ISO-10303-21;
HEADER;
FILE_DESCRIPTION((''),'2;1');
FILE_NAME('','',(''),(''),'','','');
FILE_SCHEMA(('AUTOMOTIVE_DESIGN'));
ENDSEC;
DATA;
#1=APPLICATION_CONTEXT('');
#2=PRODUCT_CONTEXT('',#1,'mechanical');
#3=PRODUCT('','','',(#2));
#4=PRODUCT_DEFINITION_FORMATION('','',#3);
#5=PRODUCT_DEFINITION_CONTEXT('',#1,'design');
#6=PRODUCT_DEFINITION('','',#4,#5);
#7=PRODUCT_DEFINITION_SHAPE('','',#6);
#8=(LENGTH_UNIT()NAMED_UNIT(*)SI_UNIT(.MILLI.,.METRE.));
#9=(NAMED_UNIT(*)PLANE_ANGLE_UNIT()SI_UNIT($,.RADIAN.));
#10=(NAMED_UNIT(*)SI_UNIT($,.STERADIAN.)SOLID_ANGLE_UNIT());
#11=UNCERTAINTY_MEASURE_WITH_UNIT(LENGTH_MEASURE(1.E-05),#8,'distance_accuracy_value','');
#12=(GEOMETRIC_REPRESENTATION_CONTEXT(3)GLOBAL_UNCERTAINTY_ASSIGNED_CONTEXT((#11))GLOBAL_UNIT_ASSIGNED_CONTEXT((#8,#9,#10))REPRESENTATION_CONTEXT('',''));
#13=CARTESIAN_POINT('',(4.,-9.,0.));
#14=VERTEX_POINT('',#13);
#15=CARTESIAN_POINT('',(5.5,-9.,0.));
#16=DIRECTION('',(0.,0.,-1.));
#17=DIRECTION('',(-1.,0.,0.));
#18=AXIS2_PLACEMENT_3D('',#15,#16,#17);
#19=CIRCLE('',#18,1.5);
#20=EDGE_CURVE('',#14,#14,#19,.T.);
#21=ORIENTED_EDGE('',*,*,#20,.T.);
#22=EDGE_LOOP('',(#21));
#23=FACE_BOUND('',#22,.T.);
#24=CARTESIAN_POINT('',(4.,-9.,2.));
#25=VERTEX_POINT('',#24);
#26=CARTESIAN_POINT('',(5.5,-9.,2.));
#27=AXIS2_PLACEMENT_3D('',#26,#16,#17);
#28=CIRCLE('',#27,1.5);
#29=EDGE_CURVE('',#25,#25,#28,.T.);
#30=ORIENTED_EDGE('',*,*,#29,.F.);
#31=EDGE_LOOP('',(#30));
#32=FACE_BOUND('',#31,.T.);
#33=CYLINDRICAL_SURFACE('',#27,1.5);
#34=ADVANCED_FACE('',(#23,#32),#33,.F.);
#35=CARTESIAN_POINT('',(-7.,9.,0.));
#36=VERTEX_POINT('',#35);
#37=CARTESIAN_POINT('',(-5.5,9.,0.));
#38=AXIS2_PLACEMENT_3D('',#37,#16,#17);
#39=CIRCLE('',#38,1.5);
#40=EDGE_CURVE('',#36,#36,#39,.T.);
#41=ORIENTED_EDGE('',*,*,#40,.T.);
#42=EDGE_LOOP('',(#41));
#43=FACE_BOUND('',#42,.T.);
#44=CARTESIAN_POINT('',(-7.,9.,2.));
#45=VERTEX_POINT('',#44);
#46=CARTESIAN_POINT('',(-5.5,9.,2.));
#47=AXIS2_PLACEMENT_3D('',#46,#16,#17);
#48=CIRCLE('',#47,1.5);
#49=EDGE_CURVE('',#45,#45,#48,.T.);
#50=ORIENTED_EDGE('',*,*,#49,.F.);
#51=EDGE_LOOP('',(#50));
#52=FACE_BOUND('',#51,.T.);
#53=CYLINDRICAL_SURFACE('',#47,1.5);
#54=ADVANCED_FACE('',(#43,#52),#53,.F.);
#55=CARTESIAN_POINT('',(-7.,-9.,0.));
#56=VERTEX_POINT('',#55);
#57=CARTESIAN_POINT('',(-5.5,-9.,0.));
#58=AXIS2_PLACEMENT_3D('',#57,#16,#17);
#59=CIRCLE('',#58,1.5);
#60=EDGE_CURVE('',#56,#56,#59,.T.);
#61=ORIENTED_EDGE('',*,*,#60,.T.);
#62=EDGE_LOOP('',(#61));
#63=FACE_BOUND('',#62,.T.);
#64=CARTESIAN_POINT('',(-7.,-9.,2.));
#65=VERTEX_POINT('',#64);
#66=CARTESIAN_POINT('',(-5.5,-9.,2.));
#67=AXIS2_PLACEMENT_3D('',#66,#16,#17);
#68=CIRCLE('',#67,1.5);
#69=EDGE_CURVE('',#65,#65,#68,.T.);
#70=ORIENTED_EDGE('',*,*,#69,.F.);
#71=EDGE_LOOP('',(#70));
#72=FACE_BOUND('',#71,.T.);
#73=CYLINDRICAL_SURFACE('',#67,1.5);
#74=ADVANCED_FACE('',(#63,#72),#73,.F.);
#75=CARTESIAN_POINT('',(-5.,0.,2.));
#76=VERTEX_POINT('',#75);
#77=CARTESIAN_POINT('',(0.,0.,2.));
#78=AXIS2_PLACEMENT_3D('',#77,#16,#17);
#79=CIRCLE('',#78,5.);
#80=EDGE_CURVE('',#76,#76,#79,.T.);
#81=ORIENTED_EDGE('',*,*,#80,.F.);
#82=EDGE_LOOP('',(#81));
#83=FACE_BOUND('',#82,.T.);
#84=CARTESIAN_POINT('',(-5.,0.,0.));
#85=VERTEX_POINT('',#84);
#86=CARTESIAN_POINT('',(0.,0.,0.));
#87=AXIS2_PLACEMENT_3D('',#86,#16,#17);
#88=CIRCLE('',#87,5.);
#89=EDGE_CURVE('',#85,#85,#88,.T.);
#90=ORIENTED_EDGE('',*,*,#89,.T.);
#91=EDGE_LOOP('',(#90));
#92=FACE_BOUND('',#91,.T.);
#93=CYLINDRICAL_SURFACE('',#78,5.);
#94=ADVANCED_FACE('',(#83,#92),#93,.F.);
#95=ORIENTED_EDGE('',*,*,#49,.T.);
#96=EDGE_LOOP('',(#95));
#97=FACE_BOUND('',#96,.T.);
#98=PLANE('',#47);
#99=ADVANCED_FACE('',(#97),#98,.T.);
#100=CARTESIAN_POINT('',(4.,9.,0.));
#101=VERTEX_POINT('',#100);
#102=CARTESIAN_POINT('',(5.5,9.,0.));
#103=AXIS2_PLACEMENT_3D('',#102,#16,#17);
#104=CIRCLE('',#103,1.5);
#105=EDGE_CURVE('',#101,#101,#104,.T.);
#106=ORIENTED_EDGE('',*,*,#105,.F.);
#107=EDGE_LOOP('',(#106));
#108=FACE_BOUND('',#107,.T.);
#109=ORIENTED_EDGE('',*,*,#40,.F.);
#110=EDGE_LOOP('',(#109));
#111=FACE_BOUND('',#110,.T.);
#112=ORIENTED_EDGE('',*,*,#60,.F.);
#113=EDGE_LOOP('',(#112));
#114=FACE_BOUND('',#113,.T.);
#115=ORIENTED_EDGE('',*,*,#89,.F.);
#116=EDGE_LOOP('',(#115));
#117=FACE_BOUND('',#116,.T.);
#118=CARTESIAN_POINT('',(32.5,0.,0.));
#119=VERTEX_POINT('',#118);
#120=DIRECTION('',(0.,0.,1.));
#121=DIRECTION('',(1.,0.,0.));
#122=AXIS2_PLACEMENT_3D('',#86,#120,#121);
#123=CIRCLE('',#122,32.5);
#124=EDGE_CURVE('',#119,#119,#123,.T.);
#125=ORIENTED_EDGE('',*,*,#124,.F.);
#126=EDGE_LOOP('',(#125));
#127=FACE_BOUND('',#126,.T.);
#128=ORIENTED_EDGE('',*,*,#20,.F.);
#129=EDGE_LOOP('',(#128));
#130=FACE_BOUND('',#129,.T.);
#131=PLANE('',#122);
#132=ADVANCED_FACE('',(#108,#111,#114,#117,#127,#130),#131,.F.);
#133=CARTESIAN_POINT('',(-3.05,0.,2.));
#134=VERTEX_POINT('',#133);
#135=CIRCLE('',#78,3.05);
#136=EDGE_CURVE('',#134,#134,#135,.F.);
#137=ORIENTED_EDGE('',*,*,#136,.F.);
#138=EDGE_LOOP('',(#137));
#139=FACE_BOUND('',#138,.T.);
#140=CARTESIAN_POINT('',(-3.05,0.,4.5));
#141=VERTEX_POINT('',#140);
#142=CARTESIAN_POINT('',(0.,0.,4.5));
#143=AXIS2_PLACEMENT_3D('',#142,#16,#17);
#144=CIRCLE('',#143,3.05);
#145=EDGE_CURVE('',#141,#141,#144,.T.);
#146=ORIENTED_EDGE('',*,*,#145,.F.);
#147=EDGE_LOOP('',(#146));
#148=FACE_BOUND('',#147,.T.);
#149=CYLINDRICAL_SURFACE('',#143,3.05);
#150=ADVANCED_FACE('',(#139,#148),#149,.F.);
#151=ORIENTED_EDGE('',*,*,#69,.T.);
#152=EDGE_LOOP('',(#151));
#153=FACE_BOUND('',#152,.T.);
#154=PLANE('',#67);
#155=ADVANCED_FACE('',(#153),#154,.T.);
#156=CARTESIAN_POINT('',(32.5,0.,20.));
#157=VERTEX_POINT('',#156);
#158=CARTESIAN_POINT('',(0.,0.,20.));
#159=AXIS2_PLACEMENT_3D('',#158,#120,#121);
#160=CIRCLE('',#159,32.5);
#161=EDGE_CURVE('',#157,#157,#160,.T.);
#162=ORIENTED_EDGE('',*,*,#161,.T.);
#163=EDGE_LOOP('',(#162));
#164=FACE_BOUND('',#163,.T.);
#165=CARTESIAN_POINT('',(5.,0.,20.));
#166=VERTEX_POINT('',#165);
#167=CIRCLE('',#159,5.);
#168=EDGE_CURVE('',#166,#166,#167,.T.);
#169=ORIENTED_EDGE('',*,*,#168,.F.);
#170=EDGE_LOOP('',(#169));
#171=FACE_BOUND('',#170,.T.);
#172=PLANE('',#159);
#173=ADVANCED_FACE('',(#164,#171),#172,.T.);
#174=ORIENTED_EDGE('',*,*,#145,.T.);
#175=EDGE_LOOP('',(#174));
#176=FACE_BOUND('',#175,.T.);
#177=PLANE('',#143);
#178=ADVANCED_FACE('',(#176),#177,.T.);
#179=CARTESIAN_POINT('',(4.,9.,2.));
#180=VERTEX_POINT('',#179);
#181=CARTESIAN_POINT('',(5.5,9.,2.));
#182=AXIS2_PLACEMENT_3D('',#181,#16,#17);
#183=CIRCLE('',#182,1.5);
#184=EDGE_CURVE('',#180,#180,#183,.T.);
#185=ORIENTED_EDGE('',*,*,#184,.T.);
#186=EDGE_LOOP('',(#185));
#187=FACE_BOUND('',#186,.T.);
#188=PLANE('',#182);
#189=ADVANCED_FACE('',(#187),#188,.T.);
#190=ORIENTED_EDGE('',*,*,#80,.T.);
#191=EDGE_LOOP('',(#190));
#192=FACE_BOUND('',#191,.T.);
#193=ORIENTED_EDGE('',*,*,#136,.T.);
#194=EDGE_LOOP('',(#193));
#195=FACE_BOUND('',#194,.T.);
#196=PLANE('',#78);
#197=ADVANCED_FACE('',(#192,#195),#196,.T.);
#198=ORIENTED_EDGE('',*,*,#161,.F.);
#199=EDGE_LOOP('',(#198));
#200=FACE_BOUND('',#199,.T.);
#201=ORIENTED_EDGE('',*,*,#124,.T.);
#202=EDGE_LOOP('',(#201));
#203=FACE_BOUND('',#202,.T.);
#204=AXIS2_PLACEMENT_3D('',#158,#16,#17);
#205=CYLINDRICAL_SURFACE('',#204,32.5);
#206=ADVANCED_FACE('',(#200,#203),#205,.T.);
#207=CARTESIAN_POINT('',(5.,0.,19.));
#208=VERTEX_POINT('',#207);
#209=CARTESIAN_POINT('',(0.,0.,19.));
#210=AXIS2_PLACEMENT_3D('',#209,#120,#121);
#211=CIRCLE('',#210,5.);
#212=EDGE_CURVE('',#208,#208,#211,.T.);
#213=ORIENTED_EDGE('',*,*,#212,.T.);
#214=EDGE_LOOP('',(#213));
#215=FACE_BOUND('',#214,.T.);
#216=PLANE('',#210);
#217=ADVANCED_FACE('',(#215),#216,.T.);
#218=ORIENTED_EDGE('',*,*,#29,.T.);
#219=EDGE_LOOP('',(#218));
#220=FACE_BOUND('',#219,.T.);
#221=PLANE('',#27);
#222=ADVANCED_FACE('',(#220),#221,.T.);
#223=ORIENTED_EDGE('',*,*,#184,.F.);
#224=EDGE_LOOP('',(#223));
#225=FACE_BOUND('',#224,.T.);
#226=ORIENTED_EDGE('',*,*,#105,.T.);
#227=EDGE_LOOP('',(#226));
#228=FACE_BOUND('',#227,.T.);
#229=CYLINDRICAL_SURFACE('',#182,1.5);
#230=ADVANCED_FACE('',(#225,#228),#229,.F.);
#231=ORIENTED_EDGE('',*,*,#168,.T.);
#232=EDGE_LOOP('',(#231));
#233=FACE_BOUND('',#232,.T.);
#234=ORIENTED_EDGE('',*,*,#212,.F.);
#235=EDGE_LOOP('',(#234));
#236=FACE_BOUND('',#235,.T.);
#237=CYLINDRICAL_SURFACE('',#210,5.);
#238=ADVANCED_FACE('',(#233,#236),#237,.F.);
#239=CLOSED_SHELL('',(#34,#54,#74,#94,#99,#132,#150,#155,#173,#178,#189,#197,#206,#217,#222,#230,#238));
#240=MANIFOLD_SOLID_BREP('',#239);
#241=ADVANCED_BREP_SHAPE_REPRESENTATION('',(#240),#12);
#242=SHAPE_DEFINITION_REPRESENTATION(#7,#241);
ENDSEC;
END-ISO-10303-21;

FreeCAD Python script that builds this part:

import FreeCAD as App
import Part
import Sketcher

doc = App.newDocument("Part")
params = doc.addObject("Spreadsheet::Sheet", "Params")
for row, (alias, value) in enumerate([
    ("sketch1_diameter", "65 mm"),
    ("pad1_length", "20 mm"),
    ("sketch2_diameter", "10 mm"),
    ("pocket1_length", "1 mm"),
    ("sketch3_diameter", "6.1 mm"),
    ("pocket2_length", "4.5 mm"),
    ("sketch4_diameter", "3 mm"),
    ("pocket3_length", "2 mm"),
    ("sketch5_diameter", "10 mm"),
    ("pocket4_length", "2 mm"),
], start=1):
    params.set(f"A{row}", alias)
    params.set(f"B{row}", "=" + value)
    params.setAlias(f"B{row}", alias)

body = doc.addObject("PartDesign::Body", "Body")

sketch1 = body.newObject("Sketcher::SketchObject", "Sketch")
sketch1.AttachmentSupport = (doc.getObject("XY_Plane"), [""])
sketch1.MapMode = "FlatFace"
sketch1.addGeometry(Part.Circle(App.Vector(0, 0, 0), App.Vector(0, 0, 1), 32.5), False)
sketch1.addConstraint([
    Sketcher.Constraint("Coincident", 0, 3, -1, 1),
    Sketcher.Constraint("Diameter", 0, 65.0),
])
sketch1.setExpression("Constraints[1]", "Params.sketch1_diameter")
pad1 = body.newObject("PartDesign::Pad", "Pad")
pad1.Profile = sketch1
pad1.setExpression("Length", "Params.pad1_length")

sketch2 = body.newObject("Sketcher::SketchObject", "Sketch001")
sketch2.AttachmentSupport = (doc.getObject("XY_Plane"), [""])
sketch2.MapMode = "FlatFace"
sketch2.AttachmentOffset = App.Placement(App.Vector(0, 0, 20), App.Rotation())
sketch2.addGeometry(Part.Circle(App.Vector(0, 0, 0), App.Vector(0, 0, 1), 5), False)
sketch2.addConstraint([
    Sketcher.Constraint("Coincident", 0, 3, -1, 1),
    Sketcher.Constraint("Diameter", 0, 10.0),
])
sketch2.setExpression("Constraints[1]", "Params.sketch2_diameter")
pocket1 = body.newObject("PartDesign::Pocket", "Pocket")
pocket1.Profile = sketch2
pocket1.setExpression("Length", "Params.pocket1_length")

sketch3 = body.newObject("Sketcher::SketchObject", "Sketch002")
sketch3.AttachmentSupport = (doc.getObject("XY_Plane"), [""])
sketch3.MapMode = "FlatFace"
sketch3.addGeometry(Part.Circle(App.Vector(0, 0, 0), App.Vector(0, 0, 1), 3.05), False)
sketch3.addConstraint([
    Sketcher.Constraint("Coincident", 0, 3, -1, 1),
    Sketcher.Constraint("Diameter", 0, 6.1),
])
sketch3.setExpression("Constraints[1]", "Params.sketch3_diameter")
pocket2 = body.newObject("PartDesign::Pocket", "Pocket001")
pocket2.Profile = sketch3
pocket2.setExpression("Length", "Params.pocket2_length")
pocket2.Reversed = True

sketch4 = body.newObject("Sketcher::SketchObject", "Sketch003")
sketch4.AttachmentSupport = (doc.getObject("XY_Plane"), [""])
sketch4.MapMode = "FlatFace"
sketch4.addGeometry([
    Part.Circle(App.Vector(-5.5, 9, 0), App.Vector(0, 0, 1), 1.5),
    Part.Circle(App.Vector(5.5, 9, 0), App.Vector(0, 0, 1), 1.5),
    Part.Circle(App.Vector(-5.5, -9, 0), App.Vector(0, 0, 1), 1.5),
    Part.Circle(App.Vector(5.5, -9, 0), App.Vector(0, 0, 1), 1.5),
], False)
sketch4.addConstraint([
    Sketcher.Constraint("Equal", 0, 1),
    Sketcher.Constraint("Equal", 1, 2),
    Sketcher.Constraint("Equal", 2, 3),
    Sketcher.Constraint("Symmetric", 1, 3, 2, 3, -1, 1),
    Sketcher.Constraint("Symmetric", 0, 3, 3, 3, -1, 1),
    Sketcher.Constraint("Symmetric", 0, 3, 1, 3, -2),
    Sketcher.Constraint("Diameter", 0, 3.0),
    Sketcher.Constraint("DistanceY", -1, 1, 0, 3, 9.0),
    Sketcher.Constraint("DistanceX", 0, 3, 1, 3, 11.0),
])
sketch4.setExpression("Constraints[6]", "Params.sketch4_diameter")
pocket3 = body.newObject("PartDesign::Pocket", "Pocket002")
pocket3.Profile = sketch4
pocket3.setExpression("Length", "Params.pocket3_length")
pocket3.Reversed = True

sketch5 = body.newObject("Sketcher::SketchObject", "Sketch004")
sketch5.AttachmentSupport = (doc.getObject("XY_Plane"), [""])
sketch5.MapMode = "FlatFace"
sketch5.AttachmentOffset = App.Placement(App.Vector(0, 0, 2), App.Rotation())
sketch5.addGeometry(Part.Circle(App.Vector(0, 0, 0), App.Vector(0, 0, 1), 5), False)
sketch5.addConstraint([
    Sketcher.Constraint("Coincident", 0, 3, -1, 1),
    Sketcher.Constraint("Diameter", 0, 10.0),
])
sketch5.setExpression("Constraints[1]", "Params.sketch5_diameter")
pocket4 = body.newObject("PartDesign::Pocket", "Pocket003")
pocket4.Profile = sketch5
pocket4.setExpression("Length", "Params.pocket4_length")

doc.recompute()
